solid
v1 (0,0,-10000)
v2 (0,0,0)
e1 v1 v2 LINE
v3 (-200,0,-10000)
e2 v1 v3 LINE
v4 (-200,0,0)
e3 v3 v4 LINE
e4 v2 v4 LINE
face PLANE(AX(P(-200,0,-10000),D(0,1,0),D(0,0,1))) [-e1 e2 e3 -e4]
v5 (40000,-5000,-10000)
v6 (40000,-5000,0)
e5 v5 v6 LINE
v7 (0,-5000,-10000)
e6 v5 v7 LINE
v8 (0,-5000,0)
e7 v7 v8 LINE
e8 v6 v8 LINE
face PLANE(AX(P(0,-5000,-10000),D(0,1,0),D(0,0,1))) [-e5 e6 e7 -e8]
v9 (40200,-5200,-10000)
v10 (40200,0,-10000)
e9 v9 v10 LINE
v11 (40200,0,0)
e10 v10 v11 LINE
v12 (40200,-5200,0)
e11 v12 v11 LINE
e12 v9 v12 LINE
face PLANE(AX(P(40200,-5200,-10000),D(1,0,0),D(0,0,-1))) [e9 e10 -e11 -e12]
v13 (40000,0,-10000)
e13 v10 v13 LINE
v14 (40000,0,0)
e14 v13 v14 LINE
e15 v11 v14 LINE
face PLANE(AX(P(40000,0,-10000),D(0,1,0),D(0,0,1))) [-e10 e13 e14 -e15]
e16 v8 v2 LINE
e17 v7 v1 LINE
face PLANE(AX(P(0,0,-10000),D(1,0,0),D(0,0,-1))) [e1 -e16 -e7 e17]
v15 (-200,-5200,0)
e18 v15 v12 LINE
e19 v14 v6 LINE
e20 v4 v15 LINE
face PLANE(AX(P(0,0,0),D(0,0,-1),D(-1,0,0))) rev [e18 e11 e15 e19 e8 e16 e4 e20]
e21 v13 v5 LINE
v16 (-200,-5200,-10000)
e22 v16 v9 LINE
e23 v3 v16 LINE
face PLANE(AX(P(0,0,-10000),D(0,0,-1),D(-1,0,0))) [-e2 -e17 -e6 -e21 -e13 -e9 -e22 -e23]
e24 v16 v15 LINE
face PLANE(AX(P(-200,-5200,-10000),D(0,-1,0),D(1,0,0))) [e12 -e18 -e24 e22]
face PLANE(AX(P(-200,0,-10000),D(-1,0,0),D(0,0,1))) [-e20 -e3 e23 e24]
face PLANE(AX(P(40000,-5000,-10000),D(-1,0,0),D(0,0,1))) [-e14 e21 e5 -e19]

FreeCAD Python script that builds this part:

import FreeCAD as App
import Part
import Sketcher
Q = App.Units.Quantity


def add_polygon(sketch, points):
    """Adds a closed chain of lines whose ends are joined by coincident constraints."""
    first, n = sketch.GeometryCount, len(points)
    for a, b in zip(points, points[1:] + points[:1]):
        sketch.addGeometry(Part.LineSegment(App.Vector(*a, 0), App.Vector(*b, 0)), False)
    for i in range(n):
        sketch.addConstraint(Sketcher.Constraint("Coincident", first + i, 2, first + (i + 1) % n, 1))

doc = App.newDocument("Part")
body = doc.addObject("PartDesign::Body", "Body")

# Sketch on XY plane
sketch1 = body.newObject("Sketcher::SketchObject", "Sketch")
sketch1.AttachmentSupport = (doc.getObject("XY_Plane"), [""])
sketch1.MapMode = "FlatFace"
add_polygon(sketch1, [(0, -5000), (0, 0), (-200, 0), (-200, -5200), (40200, -5200), (40200, 0), (40000, 0), (40000, -5000)])  # lines 0-7
sketch1.addConstraint([
    Sketcher.Constraint("Vertical", 0),
    Sketcher.Constraint("Horizontal", 1),
    Sketcher.Constraint("Vertical", 2),
    Sketcher.Constraint("Horizontal", 3),
    Sketcher.Constraint("Vertical", 4),
    Sketcher.Constraint("Horizontal", 5),
    Sketcher.Constraint("Vertical", 6),
    Sketcher.Constraint("Horizontal", 7),
    Sketcher.Constraint("Coincident", 0, 2, -1, 1),
    Sketcher.Constraint("PointOnObject", 4, 2, -1),
    Sketcher.Constraint("Equal", 1, 5),
    Sketcher.Constraint("DistanceX", 1, 2, 1, 1, Q("200 mm")),
    Sketcher.Constraint("DistanceX", 3, 1, 3, 2, Q("40400 mm")),
    Sketcher.Constraint("DistanceY", 0, 1, 0, 2, Q("5000 mm")),
    Sketcher.Constraint("DistanceY", 2, 2, 2, 1, Q("5200 mm")),
])
pad1 = body.newObject("PartDesign::Pad", "Pad")
pad1.Profile = sketch1
pad1.Length = 10000
pad1.Reversed = True

doc.recompute()
